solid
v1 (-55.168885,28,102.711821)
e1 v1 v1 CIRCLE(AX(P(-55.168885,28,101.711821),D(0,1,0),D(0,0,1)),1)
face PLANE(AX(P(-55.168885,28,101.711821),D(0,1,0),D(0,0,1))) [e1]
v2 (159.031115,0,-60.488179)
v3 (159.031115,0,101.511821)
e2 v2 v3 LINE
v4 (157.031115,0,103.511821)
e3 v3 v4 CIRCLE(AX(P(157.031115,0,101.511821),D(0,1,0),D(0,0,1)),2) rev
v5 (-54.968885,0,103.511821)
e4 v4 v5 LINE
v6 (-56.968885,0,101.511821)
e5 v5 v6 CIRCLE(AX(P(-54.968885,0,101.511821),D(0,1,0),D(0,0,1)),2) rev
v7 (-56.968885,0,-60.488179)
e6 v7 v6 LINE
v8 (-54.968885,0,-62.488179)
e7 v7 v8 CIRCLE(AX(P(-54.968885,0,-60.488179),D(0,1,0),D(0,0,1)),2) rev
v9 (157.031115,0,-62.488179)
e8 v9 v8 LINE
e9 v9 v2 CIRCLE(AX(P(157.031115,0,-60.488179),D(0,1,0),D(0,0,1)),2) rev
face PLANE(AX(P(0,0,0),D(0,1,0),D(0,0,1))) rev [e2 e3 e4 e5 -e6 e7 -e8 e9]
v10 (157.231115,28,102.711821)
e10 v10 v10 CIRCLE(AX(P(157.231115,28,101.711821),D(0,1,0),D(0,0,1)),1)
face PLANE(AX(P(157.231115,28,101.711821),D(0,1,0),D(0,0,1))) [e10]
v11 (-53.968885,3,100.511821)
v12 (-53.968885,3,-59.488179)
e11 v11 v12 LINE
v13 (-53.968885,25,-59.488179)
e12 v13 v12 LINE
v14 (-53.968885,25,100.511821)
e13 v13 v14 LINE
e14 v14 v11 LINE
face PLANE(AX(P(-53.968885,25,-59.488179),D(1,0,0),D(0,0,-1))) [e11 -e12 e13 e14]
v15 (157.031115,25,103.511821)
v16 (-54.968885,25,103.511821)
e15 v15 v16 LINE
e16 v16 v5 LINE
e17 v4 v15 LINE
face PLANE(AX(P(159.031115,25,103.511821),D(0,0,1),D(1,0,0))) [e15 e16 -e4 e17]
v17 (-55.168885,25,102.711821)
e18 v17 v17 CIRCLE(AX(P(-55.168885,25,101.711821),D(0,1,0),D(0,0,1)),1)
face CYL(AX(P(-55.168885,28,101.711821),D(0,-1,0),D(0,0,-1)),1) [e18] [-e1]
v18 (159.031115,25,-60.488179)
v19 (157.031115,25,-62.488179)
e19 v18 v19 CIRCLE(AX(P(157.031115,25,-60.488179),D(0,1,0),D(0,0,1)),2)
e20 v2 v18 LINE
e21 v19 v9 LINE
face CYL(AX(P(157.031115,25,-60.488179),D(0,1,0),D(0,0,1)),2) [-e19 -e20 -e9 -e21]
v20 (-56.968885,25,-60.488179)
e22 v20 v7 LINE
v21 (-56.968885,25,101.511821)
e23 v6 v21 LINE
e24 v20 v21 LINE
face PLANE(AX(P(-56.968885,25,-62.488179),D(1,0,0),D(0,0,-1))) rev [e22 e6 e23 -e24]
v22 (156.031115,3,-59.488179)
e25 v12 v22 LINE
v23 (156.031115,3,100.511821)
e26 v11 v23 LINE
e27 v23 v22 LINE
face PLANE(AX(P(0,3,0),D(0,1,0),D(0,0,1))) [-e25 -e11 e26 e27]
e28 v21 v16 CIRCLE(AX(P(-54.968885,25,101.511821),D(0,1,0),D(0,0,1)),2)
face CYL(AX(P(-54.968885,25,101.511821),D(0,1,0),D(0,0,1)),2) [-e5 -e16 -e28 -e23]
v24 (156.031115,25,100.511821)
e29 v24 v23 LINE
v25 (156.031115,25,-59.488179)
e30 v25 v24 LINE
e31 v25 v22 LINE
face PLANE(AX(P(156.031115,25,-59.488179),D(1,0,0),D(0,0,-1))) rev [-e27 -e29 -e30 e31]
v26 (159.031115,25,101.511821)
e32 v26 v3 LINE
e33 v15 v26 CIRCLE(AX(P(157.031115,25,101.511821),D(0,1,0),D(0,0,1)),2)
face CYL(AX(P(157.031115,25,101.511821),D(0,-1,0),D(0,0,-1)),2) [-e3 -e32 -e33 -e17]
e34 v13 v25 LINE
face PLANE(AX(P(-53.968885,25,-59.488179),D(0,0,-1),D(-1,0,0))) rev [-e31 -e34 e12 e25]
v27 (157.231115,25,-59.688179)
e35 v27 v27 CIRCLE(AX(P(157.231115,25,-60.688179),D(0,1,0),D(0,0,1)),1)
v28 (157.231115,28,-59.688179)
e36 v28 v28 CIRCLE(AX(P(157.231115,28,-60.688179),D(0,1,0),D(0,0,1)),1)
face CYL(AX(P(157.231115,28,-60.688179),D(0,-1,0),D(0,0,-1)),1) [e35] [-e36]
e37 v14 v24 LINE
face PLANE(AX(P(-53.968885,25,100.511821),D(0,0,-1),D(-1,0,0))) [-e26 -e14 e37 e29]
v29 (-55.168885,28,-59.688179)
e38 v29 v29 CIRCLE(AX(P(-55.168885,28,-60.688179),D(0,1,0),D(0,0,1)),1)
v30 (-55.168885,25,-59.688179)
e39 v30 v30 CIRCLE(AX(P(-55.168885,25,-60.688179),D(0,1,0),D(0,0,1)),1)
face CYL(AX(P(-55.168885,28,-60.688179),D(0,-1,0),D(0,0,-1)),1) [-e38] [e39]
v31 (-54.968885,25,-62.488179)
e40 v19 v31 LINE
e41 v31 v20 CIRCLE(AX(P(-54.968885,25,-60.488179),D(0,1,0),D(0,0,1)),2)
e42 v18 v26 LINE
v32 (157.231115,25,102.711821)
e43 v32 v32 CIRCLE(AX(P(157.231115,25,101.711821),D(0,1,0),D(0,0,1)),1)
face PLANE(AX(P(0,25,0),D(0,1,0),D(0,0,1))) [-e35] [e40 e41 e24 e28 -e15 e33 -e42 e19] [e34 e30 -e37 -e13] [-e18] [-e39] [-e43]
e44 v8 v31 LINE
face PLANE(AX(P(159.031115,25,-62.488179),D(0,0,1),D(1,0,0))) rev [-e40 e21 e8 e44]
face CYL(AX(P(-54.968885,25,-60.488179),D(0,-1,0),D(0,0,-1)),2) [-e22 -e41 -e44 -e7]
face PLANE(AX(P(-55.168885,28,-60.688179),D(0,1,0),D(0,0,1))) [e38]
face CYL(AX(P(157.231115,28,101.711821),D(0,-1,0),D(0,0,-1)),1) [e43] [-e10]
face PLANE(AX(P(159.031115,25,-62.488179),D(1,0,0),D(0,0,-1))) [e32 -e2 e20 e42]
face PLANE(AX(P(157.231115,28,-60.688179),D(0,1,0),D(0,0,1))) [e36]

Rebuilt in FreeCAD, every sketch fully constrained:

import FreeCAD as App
import Part
import Sketcher
from FreeCAD import Vector
Q = App.Units.Quantity


def edges_at(feature, points):
    """Names of the edges that pass closest to the given points."""
    edges = feature.Shape.Edges
    near = lambda p: min(range(len(edges)), key=lambda i: edges[i].distToShape(Part.Vertex(*p))[0])
    return sorted({f"Edge{near(p) + 1}" for p in points})


def add_polygon(sketch, points):
    """Adds a closed chain of lines whose ends are joined by coincident constraints."""
    first, n = sketch.GeometryCount, len(points)
    for a, b in zip(points, points[1:] + points[:1]):
        sketch.addGeometry(Part.LineSegment(App.Vector(*a, 0), App.Vector(*b, 0)), False)
    for i in range(n):
        sketch.addConstraint(Sketcher.Constraint("Coincident", first + i, 2, first + (i + 1) % n, 1))

doc = App.newDocument("Part")
body = doc.addObject("PartDesign::Body", "Body")

# Sketch on XZ plane
sketch1 = doc.addObject("Sketcher::SketchObject", "Sketch")
body.addObject(sketch1)
sketch1.AttachmentSupport = (doc.XZ_Plane, [""])
sketch1.MapMode = "FlatFace"
add_polygon(sketch1, [(-57, -62), (-57, 104), (159, 104), (159, -62)])  # lines 0-3
add_polygon(sketch1, [(156, 101), (-54, 101), (-54, -59), (156, -59)])  # lines 4-7
sketch1.addConstraint([
    Sketcher.Constraint("Vertical", 0),
    Sketcher.Constraint("Horizontal", 1),
    Sketcher.Constraint("Vertical", 2),
    Sketcher.Constraint("Horizontal", 3),
    Sketcher.Constraint("Horizontal", 4),
    Sketcher.Constraint("Vertical", 5),
    Sketcher.Constraint("Horizontal", 6),
    Sketcher.Constraint("Vertical", 7),
    Sketcher.Constraint("DistanceX", 1, 1, 1, 2, Q("216 mm")),
    Sketcher.Constraint("DistanceX", 4, 2, 4, 1, Q("210 mm")),
    Sketcher.Constraint("DistanceY", 0, 1, 0, 2, Q("166 mm")),
    Sketcher.Constraint("DistanceY", 5, 2, 5, 1, Q("160 mm")),
    Sketcher.Constraint("DistanceX", 0, 2, 4, 2, Q("3 mm")),
    Sketcher.Constraint("DistanceY", 4, 2, 0, 2, Q("3 mm")),
    Sketcher.Constraint("DistanceY", -1, 1, 0, 2, Q("103.511821 mm")),
    Sketcher.Constraint("DistanceX", 0, 2, -1, 1, Q("56.968885 mm")),
])
pad1 = doc.addObject("PartDesign::Pad", "Pad")
body.addObject(pad1)
pad1.Profile = sketch1
pad1.Length = 25
pad1.Reversed = True

# Sketch on XZ plane
sketch2 = doc.addObject("Sketcher::SketchObject", "Sketch001")
body.addObject(sketch2)
sketch2.AttachmentSupport = (doc.XZ_Plane, [""])
sketch2.MapMode = "FlatFace"
add_polygon(sketch2, [(-54, -59), (-54, 101), (156, 101), (156, -59)])  # lines 0-3
sketch2.addConstraint([
    Sketcher.Constraint("Vertical", 0),
    Sketcher.Constraint("Horizontal", 1),
    Sketcher.Constraint("Vertical", 2),
    Sketcher.Constraint("Horizontal", 3),
    Sketcher.Constraint("DistanceX", 1, 1, 1, 2, Q("210 mm")),
    Sketcher.Constraint("DistanceY", 0, 1, 0, 2, Q("160 mm")),
    Sketcher.Constraint("DistanceY", -1, 1, 0, 2, Q("100.511821 mm")),
    Sketcher.Constraint("DistanceX", 0, 2, -1, 1, Q("53.968885 mm")),
])
pad2 = doc.addObject("PartDesign::Pad", "Pad001")
body.addObject(pad2)
pad2.Profile = sketch2
pad2.Length = 3
pad2.Reversed = True
doc.recompute()

fillet = doc.addObject("PartDesign::Fillet", "Fillet")
body.addObject(fillet)
fillet.Base = (pad2, edges_at(pad2, [(159.031, 12.5, -62.488)]))
fillet.Radius = 2
doc.recompute()

fillet2 = doc.addObject("PartDesign::Fillet", "Fillet001")
body.addObject(fillet2)
fillet2.Base = (fillet, edges_at(fillet, [(159.031, 12.5, 103.512)]))
fillet2.Radius = 2
doc.recompute()

fillet3 = doc.addObject("PartDesign::Fillet", "Fillet002")
body.addObject(fillet3)
fillet3.Base = (fillet2, edges_at(fillet2, [(-56.969, 12.5, 103.512)]))
fillet3.Radius = 2
doc.recompute()

fillet4 = doc.addObject("PartDesign::Fillet", "Fillet003")
body.addObject(fillet4)
fillet4.Base = (fillet3, edges_at(fillet3, [(-56.969, 12.5, -62.488)]))
fillet4.Radius = 2

# Sketch on XZ plane
sketch3 = doc.addObject("Sketcher::SketchObject", "Sketch002")
body.addObject(sketch3)
sketch3.AttachmentSupport = (doc.XZ_Plane, [""])
sketch3.MapMode = "FlatFace"
sketch3.AttachmentOffset = App.Placement(Vector(0, 0, -25), App.Rotation())
sketch3.addGeometry(Part.Circle(Vector(-55.2, -60.7, 0), Vector(0, 0, 1), 1), False)
sketch3.addConstraint([
    Sketcher.Constraint("Diameter", 0, Q("2 mm")),
    Sketcher.Constraint("DistanceY", 0, 3, -1, 1, Q("60.688179 mm")),
    Sketcher.Constraint("DistanceX", 0, 3, -1, 1, Q("55.168885 mm")),
])
pad3 = doc.addObject("PartDesign::Pad", "Pad002")
body.addObject(pad3)
pad3.Profile = sketch3
pad3.Length = 3
pad3.Reversed = True

# Sketch on XZ plane
sketch4 = doc.addObject("Sketcher::SketchObject", "Sketch003")
body.addObject(sketch4)
sketch4.AttachmentSupport = (doc.XZ_Plane, [""])
sketch4.MapMode = "FlatFace"
sketch4.AttachmentOffset = App.Placement(Vector(0, 0, -25), App.Rotation())
sketch4.addGeometry(Part.Circle(Vector(-55.2, 101.7, 0), Vector(0, 0, 1), 1), False)
sketch4.addConstraint([
    Sketcher.Constraint("Diameter", 0, Q("2 mm")),
    Sketcher.Constraint("DistanceY", -1, 1, 0, 3, Q("101.711821 mm")),
    Sketcher.Constraint("DistanceX", 0, 3, -1, 1, Q("55.168885 mm")),
])
pad4 = doc.addObject("PartDesign::Pad", "Pad003")
body.addObject(pad4)
pad4.Profile = sketch4
pad4.Length = 3
pad4.Reversed = True

# Sketch on XZ plane
sketch5 = doc.addObject("Sketcher::SketchObject", "Sketch004")
body.addObject(sketch5)
sketch5.AttachmentSupport = (doc.XZ_Plane, [""])
sketch5.MapMode = "FlatFace"
sketch5.AttachmentOffset = App.Placement(Vector(0, 0, -25), App.Rotation())
sketch5.addGeometry(Part.Circle(Vector(157.2, 101.7, 0), Vector(0, 0, 1), 1), False)
sketch5.addConstraint([
    Sketcher.Constraint("Diameter", 0, Q("2 mm")),
    Sketcher.Constraint("DistanceY", -1, 1, 0, 3, Q("101.711821 mm")),
    Sketcher.Constraint("DistanceX", -1, 1, 0, 3, Q("157.231115 mm")),
])
pad5 = doc.addObject("PartDesign::Pad", "Pad004")
body.addObject(pad5)
pad5.Profile = sketch5
pad5.Length = 3
pad5.Reversed = True

# Sketch on XZ plane
sketch6 = doc.addObject("Sketcher::SketchObject", "Sketch005")
body.addObject(sketch6)
sketch6.AttachmentSupport = (doc.XZ_Plane, [""])
sketch6.MapMode = "FlatFace"
sketch6.AttachmentOffset = App.Placement(Vector(0, 0, -25), App.Rotation())
sketch6.addGeometry(Part.Circle(Vector(157.2, -60.7, 0), Vector(0, 0, 1), 1), False)
sketch6.addConstraint([
    Sketcher.Constraint("Diameter", 0, Q("2 mm")),
    Sketcher.Constraint("DistanceY", 0, 3, -1, 1, Q("60.688179 mm")),
    Sketcher.Constraint("DistanceX", -1, 1, 0, 3, Q("157.231115 mm")),
])
pad6 = doc.addObject("PartDesign::Pad", "Pad005")
body.addObject(pad6)
pad6.Profile = sketch6
pad6.Length = 3
pad6.Reversed = True

doc.recompute()
